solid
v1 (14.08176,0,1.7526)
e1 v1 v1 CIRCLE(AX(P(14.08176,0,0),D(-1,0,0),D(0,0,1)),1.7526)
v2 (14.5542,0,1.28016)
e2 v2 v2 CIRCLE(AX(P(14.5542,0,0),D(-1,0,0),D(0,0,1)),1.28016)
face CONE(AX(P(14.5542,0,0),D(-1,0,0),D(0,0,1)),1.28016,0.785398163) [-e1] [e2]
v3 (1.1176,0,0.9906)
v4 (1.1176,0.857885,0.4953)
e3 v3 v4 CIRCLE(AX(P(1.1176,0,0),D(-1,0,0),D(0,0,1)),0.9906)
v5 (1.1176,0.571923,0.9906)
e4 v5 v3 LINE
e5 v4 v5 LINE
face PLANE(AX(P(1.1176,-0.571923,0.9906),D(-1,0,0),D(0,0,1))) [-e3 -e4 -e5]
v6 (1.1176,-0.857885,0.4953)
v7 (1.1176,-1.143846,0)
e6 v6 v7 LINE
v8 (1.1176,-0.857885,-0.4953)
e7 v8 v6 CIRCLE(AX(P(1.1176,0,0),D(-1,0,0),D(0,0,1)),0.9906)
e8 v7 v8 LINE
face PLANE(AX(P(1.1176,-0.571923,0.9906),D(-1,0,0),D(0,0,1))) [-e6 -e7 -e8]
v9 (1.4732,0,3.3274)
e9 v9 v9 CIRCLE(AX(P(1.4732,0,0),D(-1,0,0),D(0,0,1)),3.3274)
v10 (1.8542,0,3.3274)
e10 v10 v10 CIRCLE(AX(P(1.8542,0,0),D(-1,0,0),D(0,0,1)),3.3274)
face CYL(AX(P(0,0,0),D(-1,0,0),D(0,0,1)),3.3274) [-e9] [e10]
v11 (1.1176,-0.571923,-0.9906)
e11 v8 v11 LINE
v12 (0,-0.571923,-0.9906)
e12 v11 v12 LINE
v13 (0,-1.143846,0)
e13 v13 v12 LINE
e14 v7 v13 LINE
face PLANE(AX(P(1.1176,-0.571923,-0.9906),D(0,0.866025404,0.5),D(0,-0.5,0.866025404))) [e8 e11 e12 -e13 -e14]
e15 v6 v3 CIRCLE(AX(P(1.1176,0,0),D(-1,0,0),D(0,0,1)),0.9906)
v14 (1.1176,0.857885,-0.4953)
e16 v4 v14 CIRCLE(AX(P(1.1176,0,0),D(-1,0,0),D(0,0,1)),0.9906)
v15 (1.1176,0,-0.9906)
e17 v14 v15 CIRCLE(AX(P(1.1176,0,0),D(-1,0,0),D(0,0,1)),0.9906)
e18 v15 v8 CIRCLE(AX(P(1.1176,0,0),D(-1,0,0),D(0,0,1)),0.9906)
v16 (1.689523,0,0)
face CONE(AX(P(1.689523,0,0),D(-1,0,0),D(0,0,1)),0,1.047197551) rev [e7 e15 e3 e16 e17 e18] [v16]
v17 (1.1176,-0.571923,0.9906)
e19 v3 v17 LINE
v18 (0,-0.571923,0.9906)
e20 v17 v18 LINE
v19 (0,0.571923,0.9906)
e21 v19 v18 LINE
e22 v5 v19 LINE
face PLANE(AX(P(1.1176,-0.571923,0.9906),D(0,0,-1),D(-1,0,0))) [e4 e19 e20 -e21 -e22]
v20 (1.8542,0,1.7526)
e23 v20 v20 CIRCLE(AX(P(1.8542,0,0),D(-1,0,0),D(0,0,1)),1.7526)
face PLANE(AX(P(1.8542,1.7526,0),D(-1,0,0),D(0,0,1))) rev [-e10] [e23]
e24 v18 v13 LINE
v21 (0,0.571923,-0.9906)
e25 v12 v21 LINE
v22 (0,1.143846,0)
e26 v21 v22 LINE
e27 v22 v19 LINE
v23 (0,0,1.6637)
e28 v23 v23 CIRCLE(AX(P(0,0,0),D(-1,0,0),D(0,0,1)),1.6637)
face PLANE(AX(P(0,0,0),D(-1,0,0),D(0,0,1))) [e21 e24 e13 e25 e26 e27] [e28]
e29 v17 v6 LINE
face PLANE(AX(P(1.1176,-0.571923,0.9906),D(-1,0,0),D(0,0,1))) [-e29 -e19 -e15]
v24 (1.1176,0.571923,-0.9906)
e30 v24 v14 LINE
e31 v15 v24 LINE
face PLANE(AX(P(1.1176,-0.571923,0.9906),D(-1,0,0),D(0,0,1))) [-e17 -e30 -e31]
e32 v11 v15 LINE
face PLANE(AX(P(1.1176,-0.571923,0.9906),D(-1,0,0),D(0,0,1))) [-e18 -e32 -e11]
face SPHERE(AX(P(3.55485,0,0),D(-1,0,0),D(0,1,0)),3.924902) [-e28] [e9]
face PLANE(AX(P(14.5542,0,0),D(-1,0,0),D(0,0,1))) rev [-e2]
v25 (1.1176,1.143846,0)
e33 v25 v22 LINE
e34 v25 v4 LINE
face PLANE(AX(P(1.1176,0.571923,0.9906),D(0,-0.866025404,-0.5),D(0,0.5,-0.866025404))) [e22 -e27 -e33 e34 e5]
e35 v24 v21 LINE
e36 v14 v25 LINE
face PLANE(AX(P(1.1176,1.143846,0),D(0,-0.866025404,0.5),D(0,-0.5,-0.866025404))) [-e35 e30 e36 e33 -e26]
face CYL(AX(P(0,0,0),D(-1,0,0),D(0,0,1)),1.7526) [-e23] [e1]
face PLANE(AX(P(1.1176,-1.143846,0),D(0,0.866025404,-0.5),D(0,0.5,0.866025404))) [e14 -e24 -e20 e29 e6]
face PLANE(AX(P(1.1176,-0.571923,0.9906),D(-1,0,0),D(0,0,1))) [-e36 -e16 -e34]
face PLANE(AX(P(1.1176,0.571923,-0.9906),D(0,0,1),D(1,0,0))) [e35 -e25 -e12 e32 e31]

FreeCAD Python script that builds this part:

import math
import FreeCAD as App
import Part
import Sketcher
from FreeCAD import Vector
Q = App.Units.Quantity

doc = App.newDocument("Part")
body = doc.addObject("PartDesign::Body", "Body")

sketch1 = body.newObject("Sketcher::SketchObject", "Sketch")
sketch1.AttachmentSupport = (doc.getObject("XY_Plane"), [""])
sketch1.MapMode = "FlatFace"
sketch1.addGeometry([
    Part.LineSegment(Vector(14.55, 0, 0), Vector(14.55, 1.28, 0)),
    Part.LineSegment(Vector(14.55, 1.28, 0), Vector(14.08, 1.75, 0)),
    Part.LineSegment(Vector(14.08, 1.75, 0), Vector(1.85, 1.75, 0)),
    Part.LineSegment(Vector(1.85, 1.75, 0), Vector(1.85, 3.33, 0)),
    Part.LineSegment(Vector(1.85, 3.33, 0), Vector(1.47, 3.33, 0)),
    Part.ArcOfCircle(Part.Circle(Vector(3.55, 0, 0), Vector(0, 0, 1), 3.92), math.radians(122), math.radians(155)),
    Part.LineSegment(Vector(0, 1.66, 0), Vector(0, 0, 0)),
    Part.LineSegment(Vector(0, 0, 0), Vector(14.55, 0, 0)),
], False)
sketch1.addConstraint([
    Sketcher.Constraint("Coincident", 0, 2, 1, 1),
    Sketcher.Constraint("Coincident", 1, 2, 2, 1),
    Sketcher.Constraint("Coincident", 2, 2, 3, 1),
    Sketcher.Constraint("Coincident", 3, 2, 4, 1),
    Sketcher.Constraint("Coincident", 4, 2, 5, 1),
    Sketcher.Constraint("Coincident", 5, 2, 6, 1),
    Sketcher.Constraint("Coincident", 6, 2, 7, 1),
    Sketcher.Constraint("Coincident", 7, 2, 0, 1),
    Sketcher.Constraint("Vertical", 0),
    Sketcher.Constraint("Horizontal", 2),
    Sketcher.Constraint("Vertical", 3),
    Sketcher.Constraint("Horizontal", 4),
    Sketcher.Constraint("Vertical", 6),
    Sketcher.Constraint("Horizontal", 7),
    Sketcher.Constraint("Coincident", 6, 2, -1, 1),
    Sketcher.Constraint("PointOnObject", 5, 3, -1),
    Sketcher.Constraint("Angle", 1, Q("135 deg")),
    Sketcher.Constraint("DistanceX", 2, 2, 0, 2, Q("0.5 in")),
    Sketcher.Constraint("DistanceX", 4, 2, 4, 1, Q("0.015 in")),
    Sketcher.Constraint("DistanceX", 7, 1, 7, 2, Q("0.573 in")),
    Sketcher.Constraint("DistanceY", 3, 1, 3, 2, Q("0.062 in")),
    Sketcher.Constraint("DistanceX", 2, 2, 2, 1, Q("0.4814 in")),
    Sketcher.Constraint("DistanceY", 0, 1, 0, 2, Q("0.0504 in")),
    Sketcher.Constraint("DistanceY", 6, 2, 6, 1, Q("0.0655 in")),
])
revolution = body.newObject("PartDesign::Revolution", "Revolution")
revolution.Profile = sketch1
revolution.ReferenceAxis = (sketch1, ["H_Axis"])
revolution.Angle = 360

sketch2 = body.newObject("Sketcher::SketchObject", "Sketch001")
sketch2.AttachmentSupport = (doc.getObject("XY_Plane"), [""])
sketch2.MapMode = "FlatFace"
sketch2.addGeometry([
    Part.LineSegment(Vector(1.1, 1, 0), Vector(0, 1, 0)),
    Part.LineSegment(Vector(0, 1, 0), Vector(0, 0, 0)),
    Part.LineSegment(Vector(0, 0, 0), Vector(1.7, 0, 0)),
    Part.LineSegment(Vector(1.7, 0, 0), Vector(1.1, 1, 0)),
], False)
sketch2.addConstraint([
    Sketcher.Constraint("Coincident", 0, 2, 1, 1),
    Sketcher.Constraint("Coincident", 1, 2, 2, 1),
    Sketcher.Constraint("Coincident", 2, 2, 3, 1),
    Sketcher.Constraint("Coincident", 3, 2, 0, 1),
    Sketcher.Constraint("Horizontal", 0),
    Sketcher.Constraint("Vertical", 1),
    Sketcher.Constraint("Horizontal", 2),
    Sketcher.Constraint("Coincident", 1, 2, -1, 1),
    Sketcher.Constraint("Angle", 3, Q("120 deg")),
    Sketcher.Constraint("DistanceX", 0, 2, 0, 1, Q("0.044 in")),
    Sketcher.Constraint("DistanceY", 1, 2, 1, 1, Q("0.039 in")),
])
groove = body.newObject("PartDesign::Groove", "Groove")
groove.Profile = sketch2
groove.ReferenceAxis = (sketch2, ["H_Axis"])
groove.Angle = 360

sketch3 = body.newObject("Sketcher::SketchObject", "Sketch002")
sketch3.AttachmentSupport = (doc.getObject("YZ_Plane"), [""])
sketch3.MapMode = "FlatFace"
sketch3.addGeometry([
    Part.LineSegment(Vector(0.6, 1, 0), Vector(-0.6, 1, 0)),
    Part.LineSegment(Vector(-0.6, 1, 0), Vector(-1.1, 0, 0)),
    Part.LineSegment(Vector(-1.1, 0, 0), Vector(-0.6, -1, 0)),
    Part.LineSegment(Vector(-0.6, -1, 0), Vector(0.6, -1, 0)),
    Part.LineSegment(Vector(0.6, -1, 0), Vector(1.1, 0, 0)),
    Part.LineSegment(Vector(1.1, 0, 0), Vector(0.6, 1, 0)),
], False)
sketch3.addConstraint([
    Sketcher.Constraint("Coincident", 0, 2, 1, 1),
    Sketcher.Constraint("Coincident", 1, 2, 2, 1),
    Sketcher.Constraint("Coincident", 2, 2, 3, 1),
    Sketcher.Constraint("Coincident", 3, 2, 4, 1),
    Sketcher.Constraint("Coincident", 4, 2, 5, 1),
    Sketcher.Constraint("Coincident", 5, 2, 0, 1),
    Sketcher.Constraint("Horizontal", 0),
    Sketcher.Constraint("Horizontal", 3),
    Sketcher.Constraint("Symmetric", 0, 2, 3, 2, -1, 1),
    Sketcher.Constraint("Symmetric", 1, 2, 4, 2, -1, 1),
    Sketcher.Constraint("PointOnObject", 1, 2, -1),
    Sketcher.Constraint("Parallel", 2, 5),
    Sketcher.Constraint("Vertical", 0, 2, 2, 2),
    Sketcher.Constraint("Angle", 1, Q("-120 deg")),
    Sketcher.Constraint("DistanceY", -1, 1, 0, 2, Q("0.039 in")),
    Sketcher.Constraint("DistanceX", 0, 2, 0, 1, Q("1.143846 mm")),
])
pocket1 = body.newObject("PartDesign::Pocket", "Pocket")
pocket1.Profile = sketch3
pocket1.Length = Q("0.044 in")
pocket1.Reversed = True

doc.recompute()
